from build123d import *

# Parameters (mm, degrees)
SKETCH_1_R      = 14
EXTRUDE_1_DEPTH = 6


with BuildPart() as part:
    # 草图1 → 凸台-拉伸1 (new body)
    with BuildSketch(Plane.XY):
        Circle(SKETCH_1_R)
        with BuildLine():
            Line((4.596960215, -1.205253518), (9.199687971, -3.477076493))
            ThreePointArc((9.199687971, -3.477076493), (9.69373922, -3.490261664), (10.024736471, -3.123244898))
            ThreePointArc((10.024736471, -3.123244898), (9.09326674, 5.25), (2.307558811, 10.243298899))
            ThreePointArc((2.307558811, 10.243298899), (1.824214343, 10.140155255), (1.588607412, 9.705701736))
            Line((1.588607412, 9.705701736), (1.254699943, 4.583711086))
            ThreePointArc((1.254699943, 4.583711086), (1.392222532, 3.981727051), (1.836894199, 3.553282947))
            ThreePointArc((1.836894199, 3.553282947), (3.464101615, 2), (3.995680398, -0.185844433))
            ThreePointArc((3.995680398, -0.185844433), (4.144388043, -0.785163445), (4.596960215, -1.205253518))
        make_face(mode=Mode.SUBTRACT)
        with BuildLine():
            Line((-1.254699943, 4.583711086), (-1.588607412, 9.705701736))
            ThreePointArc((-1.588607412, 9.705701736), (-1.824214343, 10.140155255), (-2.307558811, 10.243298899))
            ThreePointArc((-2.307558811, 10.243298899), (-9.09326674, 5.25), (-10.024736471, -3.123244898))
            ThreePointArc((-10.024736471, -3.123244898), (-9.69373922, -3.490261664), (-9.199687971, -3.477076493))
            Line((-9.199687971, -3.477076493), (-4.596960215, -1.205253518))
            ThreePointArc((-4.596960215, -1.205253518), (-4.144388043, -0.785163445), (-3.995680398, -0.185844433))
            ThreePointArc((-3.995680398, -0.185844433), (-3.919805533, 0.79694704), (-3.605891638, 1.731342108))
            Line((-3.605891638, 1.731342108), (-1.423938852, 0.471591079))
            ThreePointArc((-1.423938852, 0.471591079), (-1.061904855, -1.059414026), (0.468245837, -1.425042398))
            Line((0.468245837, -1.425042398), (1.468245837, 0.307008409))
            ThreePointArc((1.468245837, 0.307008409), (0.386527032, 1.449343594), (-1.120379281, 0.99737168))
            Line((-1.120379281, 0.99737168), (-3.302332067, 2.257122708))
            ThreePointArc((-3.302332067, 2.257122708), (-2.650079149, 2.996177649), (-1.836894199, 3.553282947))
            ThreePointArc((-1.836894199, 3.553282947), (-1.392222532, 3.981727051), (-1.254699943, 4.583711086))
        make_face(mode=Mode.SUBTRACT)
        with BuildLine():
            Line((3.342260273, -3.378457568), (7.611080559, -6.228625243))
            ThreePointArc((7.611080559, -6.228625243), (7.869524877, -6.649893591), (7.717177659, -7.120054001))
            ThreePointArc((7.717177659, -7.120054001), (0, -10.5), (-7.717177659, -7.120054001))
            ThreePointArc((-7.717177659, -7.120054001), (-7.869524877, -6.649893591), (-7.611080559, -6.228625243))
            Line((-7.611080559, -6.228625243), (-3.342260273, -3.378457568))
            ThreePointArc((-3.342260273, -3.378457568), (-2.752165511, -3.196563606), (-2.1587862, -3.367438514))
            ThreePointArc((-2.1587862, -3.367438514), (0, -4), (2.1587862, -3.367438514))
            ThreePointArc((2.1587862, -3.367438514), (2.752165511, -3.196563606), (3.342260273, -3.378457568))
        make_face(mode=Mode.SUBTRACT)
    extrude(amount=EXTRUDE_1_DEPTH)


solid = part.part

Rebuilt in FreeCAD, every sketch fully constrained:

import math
import FreeCAD as App
import Part
import Sketcher
from FreeCAD import Vector
Q = App.Units.Quantity

doc = App.newDocument("Part")
body = doc.addObject("PartDesign::Body", "Body")

sketch1 = body.newObject("Sketcher::SketchObject", "Sketch")
sketch1.AttachmentSupport = (doc.getObject("XY_Plane"), [""])
sketch1.MapMode = "FlatFace"
sketch1.addGeometry([
    Part.Circle(Vector(0, 0, 0), Vector(0, 0, 1), 14),
    Part.ArcOfCircle(Part.Circle(Vector(2.7, -4.3, 0), Vector(0, 0, 1), 1.1), math.radians(56), math.radians(123)),
    Part.LineSegment(Vector(3.3, -3.4, 0), Vector(7.6, -6.2, 0)),
    Part.ArcOfCircle(Part.Circle(Vector(7.3, -6.7, 0), Vector(0, 0, 1), 0.6), math.radians(-43), math.radians(56)),
    Part.ArcOfCircle(Part.Circle(Vector(0, 0, 0), Vector(0, 0, 1), 10.5), math.radians(-137), math.radians(-43)),
    Part.ArcOfCircle(Part.Circle(Vector(-7.3, -6.7, 0), Vector(0, 0, 1), 0.6), math.radians(124), math.radians(223)),
    Part.LineSegment(Vector(-7.6, -6.2, 0), Vector(-3.3, -3.4, 0)),
    Part.ArcOfCircle(Part.Circle(Vector(-2.7, -4.3, 0), Vector(0, 0, 1), 1.1), math.radians(57), math.radians(124)),
    Part.ArcOfCircle(Part.Circle(Vector(0, 0, 0), Vector(0, 0, 1), 4), math.radians(-123), math.radians(-57)),
    Part.LineSegment(Vector(-1.6, 9.7, 0), Vector(-1.3, 4.6, 0)),
    Part.ArcOfCircle(Part.Circle(Vector(-2.3, 4.5, 0), Vector(0, 0, 1), 1.1), math.radians(-63), math.radians(4)),
    Part.ArcOfCircle(Part.Circle(Vector(0, 0, 0), Vector(0, 0, 1), 4), math.radians(117), math.radians(146)),
    Part.LineSegment(Vector(-3.3, 2.3, 0), Vector(-1.1, 1, 0)),
    Part.ArcOfCircle(Part.Circle(Vector(0, 0, 0), Vector(0, 0, 1), 1.5), math.radians(12), math.radians(138)),
    Part.LineSegment(Vector(1.5, 0.3, 0), Vector(0.5, -1.4, 0)),
    Part.ArcOfCircle(Part.Circle(Vector(0, 0, 0), Vector(0, 0, 1), 1.5), math.radians(162), math.radians(288)),
    Part.LineSegment(Vector(-1.4, 0.5, 0), Vector(-3.6, 1.7, 0)),
    Part.ArcOfCircle(Part.Circle(Vector(0, 0, 0), Vector(0, 0, 1), 4), math.radians(154), math.radians(183)),
    Part.ArcOfCircle(Part.Circle(Vector(-5.1, -0.2, 0), Vector(0, 0, 1), 1.1), math.radians(-64), math.radians(3)),
    Part.LineSegment(Vector(-4.6, -1.2, 0), Vector(-9.2, -3.5, 0)),
    Part.ArcOfCircle(Part.Circle(Vector(-9.5, -2.9, 0), Vector(0, 0, 1), 0.6), math.radians(-163), math.radians(-64)),
    Part.ArcOfCircle(Part.Circle(Vector(0, 0, 0), Vector(0, 0, 1), 10.5), math.radians(103), math.radians(197)),
    Part.ArcOfCircle(Part.Circle(Vector(-2.2, 9.7, 0), Vector(0, 0, 1), 0.6), math.radians(4), math.radians(103)),
    Part.LineSegment(Vector(9.2, -3.5, 0), Vector(4.6, -1.2, 0)),
    Part.ArcOfCircle(Part.Circle(Vector(5.1, -0.2, 0), Vector(0, 0, 1), 1.1), math.radians(177), math.radians(244)),
    Part.ArcOfCircle(Part.Circle(Vector(0, 0, 0), Vector(0, 0, 1), 4), math.radians(-3), math.radians(63)),
    Part.ArcOfCircle(Part.Circle(Vector(2.3, 4.5, 0), Vector(0, 0, 1), 1.1), math.radians(176), math.radians(243)),
    Part.LineSegment(Vector(1.3, 4.6, 0), Vector(1.6, 9.7, 0)),
    Part.ArcOfCircle(Part.Circle(Vector(2.2, 9.7, 0), Vector(0, 0, 1), 0.6), math.radians(77), math.radians(176)),
    Part.ArcOfCircle(Part.Circle(Vector(0, 0, 0), Vector(0, 0, 1), 10.5), math.radians(-17), math.radians(77)),
    Part.ArcOfCircle(Part.Circle(Vector(9.5, -2.9, 0), Vector(0, 0, 1), 0.6), math.radians(-116), math.radians(-17)),
], False)
sketch1.addConstraint([
    Sketcher.Constraint("Tangent", 1, 1, 2, 1),
    Sketcher.Constraint("Tangent", 2, 2, 3, 2),
    Sketcher.Constraint("Tangent", 3, 1, 4, 2),
    Sketcher.Constraint("Tangent", 4, 1, 5, 2),
    Sketcher.Constraint("Tangent", 5, 1, 6, 1),
    Sketcher.Constraint("Tangent", 6, 2, 7, 2),
    Sketcher.Constraint("Tangent", 7, 1, 8, 1),
    Sketcher.Constraint("Tangent", 8, 2, 1, 2),
    Sketcher.Constraint("Tangent", 9, 2, 10, 2),
    Sketcher.Constraint("Tangent", 10, 1, 11, 1),
    Sketcher.Constraint("Coincident", 11, 2, 12, 1),
    Sketcher.Constraint("Coincident", 12, 2, 13, 2),
    Sketcher.Constraint("Coincident", 13, 1, 14, 1),
    Sketcher.Constraint("Coincident", 14, 2, 15, 2),
    Sketcher.Constraint("Coincident", 15, 1, 16, 1),
    Sketcher.Constraint("Coincident", 16, 2, 17, 1),
    Sketcher.Constraint("Tangent", 17, 2, 18, 2),
    Sketcher.Constraint("Tangent", 18, 1, 19, 1),
    Sketcher.Constraint("Tangent", 19, 2, 20, 2),
    Sketcher.Constraint("Tangent", 20, 1, 21, 2),
    Sketcher.Constraint("Tangent", 21, 1, 22, 2),
    Sketcher.Constraint("Tangent", 22, 1, 9, 1),
    Sketcher.Constraint("Tangent", 23, 2, 24, 2),
    Sketcher.Constraint("Tangent", 24, 1, 25, 1),
    Sketcher.Constraint("Tangent", 25, 2, 26, 2),
    Sketcher.Constraint("Tangent", 26, 1, 27, 1),
    Sketcher.Constraint("Tangent", 27, 2, 28, 2),
    Sketcher.Constraint("Tangent", 28, 1, 29, 2),
    Sketcher.Constraint("Tangent", 29, 1, 30, 2),
    Sketcher.Constraint("Tangent", 30, 1, 23, 1),
    Sketcher.Constraint("Coincident", 0, 3, -1, 1),
    Sketcher.Constraint("Coincident", 4, 3, -1, 1),
    Sketcher.Constraint("Coincident", 8, 3, -1, 1),
    Sketcher.Constraint("Coincident", 11, 3, -1, 1),
    Sketcher.Constraint("Coincident", 13, 3, -1, 1),
    Sketcher.Constraint("Coincident", 15, 3, -1, 1),
    Sketcher.Constraint("Coincident", 17, 3, -1, 1),
    Sketcher.Constraint("Coincident", 21, 3, -1, 1),
    Sketcher.Constraint("Coincident", 25, 3, -1, 1),
    Sketcher.Constraint("Coincident", 29, 3, -1, 1),
    Sketcher.Constraint("Equal", 3, 5),
    Sketcher.Constraint("Equal", 1, 7),
    Sketcher.Constraint("Equal", 7, 10),
    Sketcher.Constraint("Equal", 8, 11),
    Sketcher.Constraint("Equal", 13, 15),
    Sketcher.Constraint("Equal", 11, 17),
    Sketcher.Constraint("Equal", 10, 18),
    Sketcher.Constraint("Equal", 5, 20),
    Sketcher.Constraint("Equal", 4, 21),
    Sketcher.Constraint("Equal", 20, 22),
    Sketcher.Constraint("Equal", 18, 24),
    Sketcher.Constraint("Equal", 17, 25),
    Sketcher.Constraint("Equal", 24, 26),
    Sketcher.Constraint("Equal", 22, 28),
    Sketcher.Constraint("Equal", 21, 29),
    Sketcher.Constraint("Equal", 28, 30),
    Sketcher.Constraint("Symmetric", 2, 2, 5, 1, -2),
    Sketcher.Constraint("Symmetric", 18, 1, 23, 2, -2),
    Sketcher.Constraint("Symmetric", 9, 2, 26, 1, -2),
    Sketcher.Constraint("Perpendicular", 12, 14),
    Sketcher.Constraint("Perpendicular", 14, 16),
    Sketcher.Constraint("Equal", 6, 9),
    Sketcher.Constraint("Equal", 12, 16),
    Sketcher.Constraint("Equal", 9, 19),
    Sketcher.Constraint("Diameter", 0, 28.0),
    Sketcher.Constraint("Radius", 8, 4.0),
    Sketcher.Constraint("Radius", 4, 10.5),
    Sketcher.Constraint("Radius", 13, 1.5),
    Sketcher.Constraint("Angle", 12, Q("-30 deg")),
    Sketcher.Constraint("Distance", 14, 2.0),
    Sketcher.Constraint("Radius", 1, 1.080823),
    Sketcher.Constraint("Radius", 3, 0.590442),
    Sketcher.Constraint("DistanceY", -1, 1, 10, 3, 4.5134),
    Sketcher.Constraint("DistanceX", 22, 3, -1, 1, 2.177799),
    Sketcher.Constraint("DistanceX", 20, 3, 5, 3, 2.177799),
    Sketcher.Constraint("DistanceY", 7, 3, 7, 1, 0.909901),
    Sketcher.Constraint("DistanceX", 11, 2, 10, 3, 0.969098),
])
pad1 = body.newObject("PartDesign::Pad", "Pad")
pad1.Profile = sketch1
pad1.Length = 6

doc.recompute()
